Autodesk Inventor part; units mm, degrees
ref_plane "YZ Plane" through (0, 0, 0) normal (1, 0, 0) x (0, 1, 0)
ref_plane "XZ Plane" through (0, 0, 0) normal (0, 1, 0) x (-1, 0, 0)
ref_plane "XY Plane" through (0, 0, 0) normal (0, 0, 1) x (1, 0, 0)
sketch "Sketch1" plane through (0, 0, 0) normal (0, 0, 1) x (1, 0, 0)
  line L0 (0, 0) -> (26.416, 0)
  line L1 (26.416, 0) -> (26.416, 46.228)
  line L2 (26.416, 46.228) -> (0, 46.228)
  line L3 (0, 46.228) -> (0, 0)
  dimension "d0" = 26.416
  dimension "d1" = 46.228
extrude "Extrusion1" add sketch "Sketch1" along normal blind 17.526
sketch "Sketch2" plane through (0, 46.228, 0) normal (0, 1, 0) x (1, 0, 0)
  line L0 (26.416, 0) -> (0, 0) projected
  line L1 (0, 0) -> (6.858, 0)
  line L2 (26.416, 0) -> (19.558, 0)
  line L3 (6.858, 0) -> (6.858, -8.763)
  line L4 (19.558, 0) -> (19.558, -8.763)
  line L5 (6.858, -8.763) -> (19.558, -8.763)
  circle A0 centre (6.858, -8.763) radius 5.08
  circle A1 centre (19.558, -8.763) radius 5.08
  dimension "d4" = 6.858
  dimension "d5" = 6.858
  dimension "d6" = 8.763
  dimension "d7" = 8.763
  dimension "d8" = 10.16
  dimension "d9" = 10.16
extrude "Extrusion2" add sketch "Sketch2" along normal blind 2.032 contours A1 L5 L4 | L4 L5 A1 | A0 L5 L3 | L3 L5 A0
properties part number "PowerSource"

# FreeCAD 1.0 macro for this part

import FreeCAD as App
import Part
import Sketcher
from FreeCAD import Vector
Q = App.Units.Quantity

doc = App.newDocument("Part")
body = doc.addObject("PartDesign::Body", "Body")

# Sketch on XY plane
sketch1 = doc.addObject("Sketcher::SketchObject", "Sketch")
body.addObject(sketch1)
sketch1.AttachmentSupport = (doc.XY_Plane, [""])
sketch1.MapMode = "FlatFace"
sketch1.addGeometry([
    Part.LineSegment(Vector(0, 46, 0), Vector(0, 0, 0)),
    Part.LineSegment(Vector(0, 0, 0), Vector(26, 0, 0)),
    Part.LineSegment(Vector(26, 0, 0), Vector(26, 46, 0)),
    Part.LineSegment(Vector(26, 46, 0), Vector(0, 46, 0)),
], False)
sketch1.addConstraint([
    Sketcher.Constraint("Coincident", 0, 2, 1, 1),
    Sketcher.Constraint("Coincident", 1, 2, 2, 1),
    Sketcher.Constraint("Coincident", 2, 2, 3, 1),
    Sketcher.Constraint("Coincident", 3, 2, 0, 1),
    Sketcher.Constraint("Vertical", 0),
    Sketcher.Constraint("Horizontal", 1),
    Sketcher.Constraint("Vertical", 2),
    Sketcher.Constraint("Horizontal", 3),
    Sketcher.Constraint("Coincident", 0, 2, -1, 1),
    Sketcher.Constraint("DistanceX", 1, 1, 1, 2, Q("1.04 in")),
    Sketcher.Constraint("DistanceY", 0, 2, 0, 1, Q("1.82 in")),
])
pad1 = doc.addObject("PartDesign::Pad", "Pad")
body.addObject(pad1)
pad1.Profile = sketch1
pad1.Length = Q("0.69 in")

# Sketch on XZ plane
sketch2 = doc.addObject("Sketcher::SketchObject", "Sketch001")
body.addObject(sketch2)
sketch2.AttachmentSupport = (doc.XZ_Plane, [""])
sketch2.MapMode = "FlatFace"
sketch2.AttachmentOffset = App.Placement(Vector(0, 0, -1.82 * 25.4), App.Rotation())
sketch2.addGeometry([
    Part.Circle(Vector(20, 9, 0), Vector(0, 0, 1), 5),
    Part.Circle(Vector(7, 9, 0), Vector(0, 0, 1), 5),
], False)
sketch2.addConstraint([
    Sketcher.Constraint("Equal", 0, 1),
    Sketcher.Constraint("Horizontal", 0, 3, 1, 3),
    Sketcher.Constraint("Diameter", 0, Q("0.4 in")),
    Sketcher.Constraint("DistanceX", -1, 1, 1, 3, Q("0.27 in")),
    Sketcher.Constraint("DistanceY", -1, 1, 0, 3, Q("0.345 in")),
    Sketcher.Constraint("DistanceX", 1, 3, 0, 3, Q("0.5 in")),
])
pad2 = doc.addObject("PartDesign::Pad", "Pad001")
body.addObject(pad2)
pad2.Profile = sketch2
pad2.Length = Q("0.08 in")
pad2.Reversed = True

doc.recompute()
